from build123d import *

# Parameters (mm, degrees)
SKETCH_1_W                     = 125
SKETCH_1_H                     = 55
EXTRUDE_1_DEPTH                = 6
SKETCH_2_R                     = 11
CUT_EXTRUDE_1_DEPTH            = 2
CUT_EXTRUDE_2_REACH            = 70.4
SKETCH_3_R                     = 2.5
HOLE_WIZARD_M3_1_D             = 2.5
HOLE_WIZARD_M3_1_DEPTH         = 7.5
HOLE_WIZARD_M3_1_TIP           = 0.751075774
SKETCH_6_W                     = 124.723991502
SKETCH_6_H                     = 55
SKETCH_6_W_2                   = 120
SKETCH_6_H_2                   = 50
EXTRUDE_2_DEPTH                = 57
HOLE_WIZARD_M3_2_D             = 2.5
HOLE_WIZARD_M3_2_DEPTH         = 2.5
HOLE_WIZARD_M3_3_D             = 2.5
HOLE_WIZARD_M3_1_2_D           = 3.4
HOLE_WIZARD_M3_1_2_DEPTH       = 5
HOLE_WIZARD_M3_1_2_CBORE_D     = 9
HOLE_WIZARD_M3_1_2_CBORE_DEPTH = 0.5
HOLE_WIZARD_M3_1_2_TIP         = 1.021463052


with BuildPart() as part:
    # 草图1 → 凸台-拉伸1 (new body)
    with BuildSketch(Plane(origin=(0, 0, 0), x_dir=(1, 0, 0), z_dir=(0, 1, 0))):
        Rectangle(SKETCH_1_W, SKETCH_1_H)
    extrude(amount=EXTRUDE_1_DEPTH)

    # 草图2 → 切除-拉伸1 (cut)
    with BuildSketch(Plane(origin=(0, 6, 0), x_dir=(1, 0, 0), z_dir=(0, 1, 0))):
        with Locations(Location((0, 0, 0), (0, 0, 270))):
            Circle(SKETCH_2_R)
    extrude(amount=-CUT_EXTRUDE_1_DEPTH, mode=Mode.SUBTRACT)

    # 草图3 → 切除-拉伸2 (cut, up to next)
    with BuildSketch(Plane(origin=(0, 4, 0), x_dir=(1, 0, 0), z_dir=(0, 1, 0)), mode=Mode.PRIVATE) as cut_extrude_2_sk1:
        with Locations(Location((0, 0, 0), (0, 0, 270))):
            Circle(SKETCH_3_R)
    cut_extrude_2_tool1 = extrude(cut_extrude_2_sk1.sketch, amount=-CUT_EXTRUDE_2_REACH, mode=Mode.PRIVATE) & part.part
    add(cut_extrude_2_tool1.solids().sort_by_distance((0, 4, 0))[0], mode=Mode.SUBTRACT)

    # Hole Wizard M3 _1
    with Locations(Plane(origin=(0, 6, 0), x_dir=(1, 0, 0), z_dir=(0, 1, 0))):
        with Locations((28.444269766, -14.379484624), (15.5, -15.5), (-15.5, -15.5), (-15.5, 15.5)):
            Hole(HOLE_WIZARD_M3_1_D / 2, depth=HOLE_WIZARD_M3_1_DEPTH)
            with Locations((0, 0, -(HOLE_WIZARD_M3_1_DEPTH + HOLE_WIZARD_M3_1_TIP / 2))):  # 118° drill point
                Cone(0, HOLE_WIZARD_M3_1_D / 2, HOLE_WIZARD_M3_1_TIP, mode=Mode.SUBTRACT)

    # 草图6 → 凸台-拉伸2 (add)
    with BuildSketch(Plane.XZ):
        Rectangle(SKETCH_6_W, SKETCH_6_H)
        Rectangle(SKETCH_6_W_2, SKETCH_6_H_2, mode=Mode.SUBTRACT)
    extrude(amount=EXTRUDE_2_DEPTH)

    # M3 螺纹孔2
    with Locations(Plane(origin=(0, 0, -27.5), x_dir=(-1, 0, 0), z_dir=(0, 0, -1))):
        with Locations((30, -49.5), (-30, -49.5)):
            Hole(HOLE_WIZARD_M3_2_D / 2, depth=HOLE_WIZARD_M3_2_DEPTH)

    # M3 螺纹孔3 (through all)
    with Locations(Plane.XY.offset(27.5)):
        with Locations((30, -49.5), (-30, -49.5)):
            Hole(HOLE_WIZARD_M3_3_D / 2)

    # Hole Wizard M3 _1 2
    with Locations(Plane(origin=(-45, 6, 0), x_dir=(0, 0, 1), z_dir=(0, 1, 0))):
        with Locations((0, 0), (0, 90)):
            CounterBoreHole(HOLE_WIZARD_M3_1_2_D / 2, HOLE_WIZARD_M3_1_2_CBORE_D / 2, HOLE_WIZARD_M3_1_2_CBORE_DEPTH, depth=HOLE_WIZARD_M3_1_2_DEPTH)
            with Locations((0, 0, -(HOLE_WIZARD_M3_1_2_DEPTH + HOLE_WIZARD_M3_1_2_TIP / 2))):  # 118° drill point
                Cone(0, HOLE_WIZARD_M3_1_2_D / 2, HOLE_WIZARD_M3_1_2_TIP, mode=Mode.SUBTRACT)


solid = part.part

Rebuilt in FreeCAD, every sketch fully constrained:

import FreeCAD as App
import Part
import Sketcher
Q = App.Units.Quantity


def add_polygon(sketch, points):
    """Adds a closed chain of lines whose ends are joined by coincident constraints."""
    first, n = sketch.GeometryCount, len(points)
    for a, b in zip(points, points[1:] + points[:1]):
        sketch.addGeometry(Part.LineSegment(App.Vector(*a, 0), App.Vector(*b, 0)), False)
    for i in range(n):
        sketch.addConstraint(Sketcher.Constraint("Coincident", first + i, 2, first + (i + 1) % n, 1))

doc = App.newDocument("Part")
body = doc.addObject("PartDesign::Body", "Body")

sketch1 = body.newObject("Sketcher::SketchObject", "Sketch")
sketch1.AttachmentSupport = (doc.getObject("XZ_Plane"), [""])
sketch1.MapMode = "FlatFace"
add_polygon(sketch1, [(-62, -28), (-62, 28), (62, 28), (62, -28)])
sketch1.addConstraint([
    Sketcher.Constraint("Vertical", 0),
    Sketcher.Constraint("Horizontal", 1),
    Sketcher.Constraint("Vertical", 2),
    Sketcher.Constraint("Horizontal", 3),
    Sketcher.Constraint("Symmetric", 0, 2, 2, 2, -1, 1),
    Sketcher.Constraint("DistanceX", 1, 1, 1, 2, Q("125 mm")),
    Sketcher.Constraint("DistanceY", 0, 1, 0, 2, Q("55 mm")),
])
pad1 = body.newObject("PartDesign::Pad", "Pad")
pad1.Profile = sketch1
pad1.Length = 6
pad1.Reversed = True

sketch2 = body.newObject("Sketcher::SketchObject", "Sketch001")
sketch2.AttachmentSupport = (doc.getObject("XZ_Plane"), [""])
sketch2.MapMode = "FlatFace"
sketch2.AttachmentOffset = App.Placement(App.Vector(0, 0, -6), App.Rotation())
sketch2.addGeometry(Part.Circle(App.Vector(0, 0, 0), App.Vector(0, 0, 1), 11), False)
sketch2.addConstraint([
    Sketcher.Constraint("Coincident", 0, 3, -1, 1),
    Sketcher.Constraint("Diameter", 0, Q("22 mm")),
])
pocket1 = body.newObject("PartDesign::Pocket", "Pocket")
pocket1.Profile = sketch2
pocket1.Length = 2
pocket1.Reversed = True

sketch3 = body.newObject("Sketcher::SketchObject", "Sketch002")
sketch3.AttachmentSupport = (doc.getObject("XZ_Plane"), [""])
sketch3.MapMode = "FlatFace"
sketch3.AttachmentOffset = App.Placement(App.Vector(0, 0, -4), App.Rotation())
sketch3.addGeometry(Part.Circle(App.Vector(0, 0, 0), App.Vector(0, 0, 1), 2.5), False)
sketch3.addConstraint([
    Sketcher.Constraint("Coincident", 0, 3, -1, 1),
    Sketcher.Constraint("Diameter", 0, Q("5 mm")),
])
pocket2 = body.newObject("PartDesign::Pocket", "Pocket001")
pocket2.Profile = sketch3
pocket2.Type = "UpToFirst"
pocket2.Reversed = True

sketch4 = body.newObject("Sketcher::SketchObject", "Sketch003")
sketch4.AttachmentSupport = (doc.getObject("XZ_Plane"), [""])
sketch4.MapMode = "FlatFace"
sketch4.AttachmentOffset = App.Placement(App.Vector(0, 0, -6), App.Rotation())
sketch4.addGeometry([
    Part.Circle(App.Vector(28.4, 14.4, 0), App.Vector(0, 0, 1), 1.2),
    Part.Circle(App.Vector(15.5, 15.5, 0), App.Vector(0, 0, 1), 1.2),
    Part.Circle(App.Vector(-15.5, 15.5, 0), App.Vector(0, 0, 1), 1.2),
    Part.Circle(App.Vector(-15.5, -15.5, 0), App.Vector(0, 0, 1), 1.2),
], False)
sketch4.addConstraint([
    Sketcher.Constraint("Equal", 0, 1),
    Sketcher.Constraint("Equal", 1, 2),
    Sketcher.Constraint("Equal", 2, 3),
    Sketcher.Constraint("Symmetric", 1, 3, 3, 3, -1, 1),
    Sketcher.Constraint("Symmetric", 1, 3, 2, 3, -2),
    Sketcher.Constraint("Diameter", 0, Q("2.5 mm")),
    Sketcher.Constraint("DistanceX", 2, 3, 1, 3, Q("31 mm")),
    Sketcher.Constraint("DistanceY", 3, 3, 2, 3, Q("31 mm")),
    Sketcher.Constraint("DistanceX", -1, 1, 0, 3, Q("28.44427 mm")),
    Sketcher.Constraint("DistanceY", -1, 1, 0, 3, Q("14.379485 mm")),
])
doc.recompute()
hole = body.newObject("PartDesign::Hole", "Hole")
hole.Profile = sketch4
hole.ThreadType = "None"
hole.Diameter = 2.5
hole.DepthType = "Dimension"
hole.Depth = 7.5
hole.DrillPoint = "Angled"
hole.DrillPointAngle = 118
hole.Reversed = True

sketch5 = body.newObject("Sketcher::SketchObject", "Sketch004")
sketch5.AttachmentSupport = (doc.getObject("XZ_Plane"), [""])
sketch5.MapMode = "FlatFace"
add_polygon(sketch5, [(-62, 28), (-62, -28), (62, -28), (62, 28)])
add_polygon(sketch5, [(60, -25), (-60, -25), (-60, 25), (60, 25)])
sketch5.addConstraint([
    Sketcher.Constraint("Vertical", 0),
    Sketcher.Constraint("Horizontal", 1),
    Sketcher.Constraint("Vertical", 2),
    Sketcher.Constraint("Horizontal", 3),
    Sketcher.Constraint("Horizontal", 4),
    Sketcher.Constraint("Vertical", 5),
    Sketcher.Constraint("Horizontal", 6),
    Sketcher.Constraint("Vertical", 7),
    Sketcher.Constraint("Symmetric", 0, 2, 2, 2, -1, 1),
    Sketcher.Constraint("Symmetric", 4, 2, 6, 2, -1, 1),
    Sketcher.Constraint("DistanceX", 4, 2, 4, 1, Q("120 mm")),
    Sketcher.Constraint("DistanceY", 0, 2, 0, 1, Q("55 mm")),
    Sketcher.Constraint("DistanceY", 5, 1, 5, 2, Q("50 mm")),
    Sketcher.Constraint("DistanceX", 1, 1, 1, 2, Q("124.723992 mm")),
])
pad2 = body.newObject("PartDesign::Pad", "Pad001")
pad2.Profile = sketch5
pad2.Length = 57

sketch6 = body.newObject("Sketcher::SketchObject", "Sketch005")
sketch6.AttachmentSupport = (doc.getObject("XY_Plane"), [""])
sketch6.MapMode = "FlatFace"
sketch6.AttachmentOffset = App.Placement(App.Vector(0, 0, -27.5), App.Rotation())
sketch6.addGeometry([
    Part.Circle(App.Vector(-30, -49.5, 0), App.Vector(0, 0, 1), 1.2),
    Part.Circle(App.Vector(30, -49.5, 0), App.Vector(0, 0, 1), 1.2),
], False)
sketch6.addConstraint([
    Sketcher.Constraint("Equal", 0, 1),
    Sketcher.Constraint("Symmetric", 0, 3, 1, 3, -2),
    Sketcher.Constraint("Diameter", 0, Q("2.5 mm")),
    Sketcher.Constraint("DistanceX", 0, 3, -1, 1, Q("30 mm")),
    Sketcher.Constraint("DistanceY", 0, 3, -1, 1, Q("49.5 mm")),
])
doc.recompute()
hole2 = body.newObject("PartDesign::Hole", "Hole001")
hole2.Profile = sketch6
hole2.ThreadType = "None"
hole2.Diameter = 2.5
hole2.DepthType = "Dimension"
hole2.Depth = 2.5
hole2.DrillPoint = "Flat"
hole2.Reversed = True

sketch7 = body.newObject("Sketcher::SketchObject", "Sketch006")
sketch7.AttachmentSupport = (doc.getObject("XY_Plane"), [""])
sketch7.MapMode = "FlatFace"
sketch7.AttachmentOffset = App.Placement(App.Vector(0, 0, 27.5), App.Rotation())
sketch7.addGeometry([
    Part.Circle(App.Vector(30, -49.5, 0), App.Vector(0, 0, 1), 1.2),
    Part.Circle(App.Vector(-30, -49.5, 0), App.Vector(0, 0, 1), 1.2),
], False)
sketch7.addConstraint([
    Sketcher.Constraint("Equal", 0, 1),
    Sketcher.Constraint("Symmetric", 0, 3, 1, 3, -2),
    Sketcher.Constraint("Diameter", 0, Q("2.5 mm")),
    Sketcher.Constraint("DistanceX", -1, 1, 0, 3, Q("30 mm")),
    Sketcher.Constraint("DistanceY", 0, 3, -1, 1, Q("49.5 mm")),
])
doc.recompute()
hole3 = body.newObject("PartDesign::Hole", "Hole002")
hole3.Profile = sketch7
hole3.ThreadType = "None"
hole3.Diameter = 2.5
hole3.DepthType = "ThroughAll"

sketch8 = body.newObject("Sketcher::SketchObject", "Sketch007")
sketch8.AttachmentSupport = (doc.getObject("XZ_Plane"), [""])
sketch8.MapMode = "FlatFace"
sketch8.AttachmentOffset = App.Placement(App.Vector(0, 0, -6), App.Rotation())
sketch8.addGeometry([
    Part.Circle(App.Vector(-45, 0, 0), App.Vector(0, 0, 1), 1.7),
    Part.Circle(App.Vector(45, 0, 0), App.Vector(0, 0, 1), 1.7),
], False)
sketch8.addConstraint([
    Sketcher.Constraint("Equal", 0, 1),
    Sketcher.Constraint("Symmetric", 0, 3, 1, 3, -1, 1),
    Sketcher.Constraint("PointOnObject", 0, 3, -1),
    Sketcher.Constraint("Diameter", 0, Q("3.4 mm")),
    Sketcher.Constraint("DistanceX", 0, 3, -1, 1, Q("45 mm")),
])
doc.recompute()
hole4 = body.newObject("PartDesign::Hole", "Hole003")
hole4.Profile = sketch8
hole4.ThreadType = "None"
hole4.Diameter = 3.4
hole4.DepthType = "Dimension"
hole4.Depth = 5
hole4.DrillPoint = "Angled"
hole4.DrillPointAngle = 118
hole4.HoleCutType = "Counterbore"
hole4.HoleCutDiameter = 9
hole4.HoleCutDepth = 0.5
hole4.Reversed = True

doc.recompute()
